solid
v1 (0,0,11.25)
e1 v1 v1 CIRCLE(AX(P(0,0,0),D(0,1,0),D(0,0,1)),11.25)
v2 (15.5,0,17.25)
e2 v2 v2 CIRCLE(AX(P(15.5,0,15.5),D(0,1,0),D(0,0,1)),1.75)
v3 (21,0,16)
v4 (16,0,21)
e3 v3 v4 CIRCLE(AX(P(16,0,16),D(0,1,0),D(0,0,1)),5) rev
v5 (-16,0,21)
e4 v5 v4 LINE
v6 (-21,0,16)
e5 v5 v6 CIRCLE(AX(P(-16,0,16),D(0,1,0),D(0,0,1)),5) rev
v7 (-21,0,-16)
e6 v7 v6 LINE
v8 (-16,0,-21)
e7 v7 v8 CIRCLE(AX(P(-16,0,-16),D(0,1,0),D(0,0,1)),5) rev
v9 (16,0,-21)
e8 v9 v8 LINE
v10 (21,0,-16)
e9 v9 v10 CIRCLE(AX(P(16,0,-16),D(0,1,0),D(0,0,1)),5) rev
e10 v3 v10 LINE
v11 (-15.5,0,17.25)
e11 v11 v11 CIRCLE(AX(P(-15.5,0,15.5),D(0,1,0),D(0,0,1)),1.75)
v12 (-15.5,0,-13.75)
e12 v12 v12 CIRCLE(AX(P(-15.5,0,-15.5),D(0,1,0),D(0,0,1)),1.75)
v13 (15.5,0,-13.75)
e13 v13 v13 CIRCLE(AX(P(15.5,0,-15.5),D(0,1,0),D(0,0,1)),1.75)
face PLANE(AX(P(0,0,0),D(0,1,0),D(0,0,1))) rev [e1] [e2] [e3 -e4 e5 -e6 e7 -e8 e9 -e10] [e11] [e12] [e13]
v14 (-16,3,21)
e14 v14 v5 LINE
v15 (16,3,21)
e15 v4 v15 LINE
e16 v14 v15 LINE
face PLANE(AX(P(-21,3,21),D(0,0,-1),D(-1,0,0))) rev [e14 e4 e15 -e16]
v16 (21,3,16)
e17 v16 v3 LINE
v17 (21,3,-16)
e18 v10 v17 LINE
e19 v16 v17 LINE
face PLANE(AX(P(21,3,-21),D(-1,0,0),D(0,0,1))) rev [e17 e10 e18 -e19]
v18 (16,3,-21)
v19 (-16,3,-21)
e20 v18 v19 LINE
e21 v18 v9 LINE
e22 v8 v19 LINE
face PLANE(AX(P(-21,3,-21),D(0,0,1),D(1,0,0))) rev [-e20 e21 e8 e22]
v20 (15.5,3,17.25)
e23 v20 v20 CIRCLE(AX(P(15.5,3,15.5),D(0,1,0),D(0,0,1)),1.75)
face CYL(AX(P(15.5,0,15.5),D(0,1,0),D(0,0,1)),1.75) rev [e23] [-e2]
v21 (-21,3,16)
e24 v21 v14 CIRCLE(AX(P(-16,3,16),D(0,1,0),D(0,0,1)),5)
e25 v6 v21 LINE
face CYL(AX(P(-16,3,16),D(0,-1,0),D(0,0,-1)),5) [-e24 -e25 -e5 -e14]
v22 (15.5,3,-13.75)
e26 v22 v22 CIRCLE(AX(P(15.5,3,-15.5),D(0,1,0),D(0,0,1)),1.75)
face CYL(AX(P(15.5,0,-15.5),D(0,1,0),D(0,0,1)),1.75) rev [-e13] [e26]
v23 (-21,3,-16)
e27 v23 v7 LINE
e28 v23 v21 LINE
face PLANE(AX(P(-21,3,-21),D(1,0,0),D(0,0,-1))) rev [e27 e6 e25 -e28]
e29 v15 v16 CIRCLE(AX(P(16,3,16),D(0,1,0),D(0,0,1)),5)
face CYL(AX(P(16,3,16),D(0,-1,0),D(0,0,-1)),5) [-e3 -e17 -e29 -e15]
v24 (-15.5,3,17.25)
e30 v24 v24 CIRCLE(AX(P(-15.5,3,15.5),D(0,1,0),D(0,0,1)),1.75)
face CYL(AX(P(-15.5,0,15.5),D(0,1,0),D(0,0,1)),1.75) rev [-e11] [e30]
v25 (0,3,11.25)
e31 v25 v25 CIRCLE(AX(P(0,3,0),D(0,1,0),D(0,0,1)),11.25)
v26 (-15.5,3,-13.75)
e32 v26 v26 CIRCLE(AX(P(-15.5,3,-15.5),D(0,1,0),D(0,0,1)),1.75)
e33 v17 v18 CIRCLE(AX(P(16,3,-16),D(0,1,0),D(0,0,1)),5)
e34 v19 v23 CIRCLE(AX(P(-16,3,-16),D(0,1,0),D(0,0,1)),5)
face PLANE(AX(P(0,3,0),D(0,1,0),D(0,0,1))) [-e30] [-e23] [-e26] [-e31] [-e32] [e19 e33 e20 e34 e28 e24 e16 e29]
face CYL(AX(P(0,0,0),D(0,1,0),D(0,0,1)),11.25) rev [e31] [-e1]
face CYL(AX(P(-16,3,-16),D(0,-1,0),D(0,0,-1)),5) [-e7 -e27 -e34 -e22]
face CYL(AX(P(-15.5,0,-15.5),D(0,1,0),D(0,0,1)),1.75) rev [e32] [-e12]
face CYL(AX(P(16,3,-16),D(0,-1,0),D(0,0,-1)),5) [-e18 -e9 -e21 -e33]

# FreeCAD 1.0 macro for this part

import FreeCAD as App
import Part
import Sketcher
Q = App.Units.Quantity


def edges_at(feature, points):
    """Names of the edges that pass closest to the given points."""
    edges = feature.Shape.Edges
    near = lambda p: min(range(len(edges)), key=lambda i: edges[i].distToShape(Part.Vertex(*p))[0])
    return sorted({f"Edge{near(p) + 1}" for p in points})


def add_polygon(sketch, points):
    """Adds a closed chain of lines whose ends are joined by coincident constraints."""
    first, n = sketch.GeometryCount, len(points)
    for a, b in zip(points, points[1:] + points[:1]):
        sketch.addGeometry(Part.LineSegment(App.Vector(*a, 0), App.Vector(*b, 0)), False)
    for i in range(n):
        sketch.addConstraint(Sketcher.Constraint("Coincident", first + i, 2, first + (i + 1) % n, 1))

doc = App.newDocument("Part")
body = doc.addObject("PartDesign::Body", "Body")

sketch1 = body.newObject("Sketcher::SketchObject", "Sketch")
sketch1.AttachmentSupport = (doc.getObject("XZ_Plane"), [""])
sketch1.MapMode = "FlatFace"
add_polygon(sketch1, [(-21, -21), (-21, 21), (21, 21), (21, -21)])
sketch1.addConstraint([
    Sketcher.Constraint("Vertical", 0),
    Sketcher.Constraint("Horizontal", 1),
    Sketcher.Constraint("Vertical", 2),
    Sketcher.Constraint("Horizontal", 3),
    Sketcher.Constraint("Symmetric", 0, 2, 2, 2, -1, 1),
    Sketcher.Constraint("Equal", 3, 0),
    Sketcher.Constraint("DistanceX", 1, 1, 1, 2, Q("42 mm")),
])
pad1 = body.newObject("PartDesign::Pad", "Pad")
pad1.Profile = sketch1
pad1.Length = 3
pad1.Reversed = True

sketch2 = body.newObject("Sketcher::SketchObject", "Sketch001")
sketch2.AttachmentSupport = (doc.getObject("XZ_Plane"), [""])
sketch2.MapMode = "FlatFace"
sketch2.AttachmentOffset = App.Placement(App.Vector(0, 0, -3), App.Rotation())
sketch2.addGeometry([
    Part.Circle(App.Vector(-15.5, -15.5, 0), App.Vector(0, 0, 1), 1.75),
    Part.Circle(App.Vector(15.5, -15.5, 0), App.Vector(0, 0, 1), 1.75),
    Part.Circle(App.Vector(15.5, 15.5, 0), App.Vector(0, 0, 1), 1.75),
    Part.Circle(App.Vector(-15.5, 15.5, 0), App.Vector(0, 0, 1), 1.75),
    Part.Circle(App.Vector(0, 0, 0), App.Vector(0, 0, 1), 11.25),
], False)
sketch2.addConstraint([
    Sketcher.Constraint("Coincident", 4, 3, -1, 1),
    Sketcher.Constraint("Equal", 0, 1),
    Sketcher.Constraint("Equal", 1, 2),
    Sketcher.Constraint("Equal", 2, 3),
    Sketcher.Constraint("Symmetric", 0, 3, 2, 3, -1, 1),
    Sketcher.Constraint("Symmetric", 1, 3, 3, 3, -1, 1),
    Sketcher.Constraint("Symmetric", 0, 3, 1, 3, -2),
    Sketcher.Constraint("Diameter", 0, Q("3.5 mm")),
    Sketcher.Constraint("Diameter", 4, Q("22.5 mm")),
    Sketcher.Constraint("DistanceX", 0, 3, 1, 3, Q("31 mm")),
    Sketcher.Constraint("DistanceY", 1, 3, 2, 3, Q("31 mm")),
])
pocket1 = body.newObject("PartDesign::Pocket", "Pocket")
pocket1.Profile = sketch2
pocket1.Type = "ThroughAll"
pocket1.Reversed = True
doc.recompute()

fillet = body.newObject("PartDesign::Fillet", "Fillet")
fillet.Base = (pocket1, edges_at(pocket1, [
    (21, 1.5, 21),
    (-21, 1.5, 21),
    (-21, 1.5, -21),
    (21, 1.5, -21),
]))
fillet.Radius = 5

doc.recompute()
